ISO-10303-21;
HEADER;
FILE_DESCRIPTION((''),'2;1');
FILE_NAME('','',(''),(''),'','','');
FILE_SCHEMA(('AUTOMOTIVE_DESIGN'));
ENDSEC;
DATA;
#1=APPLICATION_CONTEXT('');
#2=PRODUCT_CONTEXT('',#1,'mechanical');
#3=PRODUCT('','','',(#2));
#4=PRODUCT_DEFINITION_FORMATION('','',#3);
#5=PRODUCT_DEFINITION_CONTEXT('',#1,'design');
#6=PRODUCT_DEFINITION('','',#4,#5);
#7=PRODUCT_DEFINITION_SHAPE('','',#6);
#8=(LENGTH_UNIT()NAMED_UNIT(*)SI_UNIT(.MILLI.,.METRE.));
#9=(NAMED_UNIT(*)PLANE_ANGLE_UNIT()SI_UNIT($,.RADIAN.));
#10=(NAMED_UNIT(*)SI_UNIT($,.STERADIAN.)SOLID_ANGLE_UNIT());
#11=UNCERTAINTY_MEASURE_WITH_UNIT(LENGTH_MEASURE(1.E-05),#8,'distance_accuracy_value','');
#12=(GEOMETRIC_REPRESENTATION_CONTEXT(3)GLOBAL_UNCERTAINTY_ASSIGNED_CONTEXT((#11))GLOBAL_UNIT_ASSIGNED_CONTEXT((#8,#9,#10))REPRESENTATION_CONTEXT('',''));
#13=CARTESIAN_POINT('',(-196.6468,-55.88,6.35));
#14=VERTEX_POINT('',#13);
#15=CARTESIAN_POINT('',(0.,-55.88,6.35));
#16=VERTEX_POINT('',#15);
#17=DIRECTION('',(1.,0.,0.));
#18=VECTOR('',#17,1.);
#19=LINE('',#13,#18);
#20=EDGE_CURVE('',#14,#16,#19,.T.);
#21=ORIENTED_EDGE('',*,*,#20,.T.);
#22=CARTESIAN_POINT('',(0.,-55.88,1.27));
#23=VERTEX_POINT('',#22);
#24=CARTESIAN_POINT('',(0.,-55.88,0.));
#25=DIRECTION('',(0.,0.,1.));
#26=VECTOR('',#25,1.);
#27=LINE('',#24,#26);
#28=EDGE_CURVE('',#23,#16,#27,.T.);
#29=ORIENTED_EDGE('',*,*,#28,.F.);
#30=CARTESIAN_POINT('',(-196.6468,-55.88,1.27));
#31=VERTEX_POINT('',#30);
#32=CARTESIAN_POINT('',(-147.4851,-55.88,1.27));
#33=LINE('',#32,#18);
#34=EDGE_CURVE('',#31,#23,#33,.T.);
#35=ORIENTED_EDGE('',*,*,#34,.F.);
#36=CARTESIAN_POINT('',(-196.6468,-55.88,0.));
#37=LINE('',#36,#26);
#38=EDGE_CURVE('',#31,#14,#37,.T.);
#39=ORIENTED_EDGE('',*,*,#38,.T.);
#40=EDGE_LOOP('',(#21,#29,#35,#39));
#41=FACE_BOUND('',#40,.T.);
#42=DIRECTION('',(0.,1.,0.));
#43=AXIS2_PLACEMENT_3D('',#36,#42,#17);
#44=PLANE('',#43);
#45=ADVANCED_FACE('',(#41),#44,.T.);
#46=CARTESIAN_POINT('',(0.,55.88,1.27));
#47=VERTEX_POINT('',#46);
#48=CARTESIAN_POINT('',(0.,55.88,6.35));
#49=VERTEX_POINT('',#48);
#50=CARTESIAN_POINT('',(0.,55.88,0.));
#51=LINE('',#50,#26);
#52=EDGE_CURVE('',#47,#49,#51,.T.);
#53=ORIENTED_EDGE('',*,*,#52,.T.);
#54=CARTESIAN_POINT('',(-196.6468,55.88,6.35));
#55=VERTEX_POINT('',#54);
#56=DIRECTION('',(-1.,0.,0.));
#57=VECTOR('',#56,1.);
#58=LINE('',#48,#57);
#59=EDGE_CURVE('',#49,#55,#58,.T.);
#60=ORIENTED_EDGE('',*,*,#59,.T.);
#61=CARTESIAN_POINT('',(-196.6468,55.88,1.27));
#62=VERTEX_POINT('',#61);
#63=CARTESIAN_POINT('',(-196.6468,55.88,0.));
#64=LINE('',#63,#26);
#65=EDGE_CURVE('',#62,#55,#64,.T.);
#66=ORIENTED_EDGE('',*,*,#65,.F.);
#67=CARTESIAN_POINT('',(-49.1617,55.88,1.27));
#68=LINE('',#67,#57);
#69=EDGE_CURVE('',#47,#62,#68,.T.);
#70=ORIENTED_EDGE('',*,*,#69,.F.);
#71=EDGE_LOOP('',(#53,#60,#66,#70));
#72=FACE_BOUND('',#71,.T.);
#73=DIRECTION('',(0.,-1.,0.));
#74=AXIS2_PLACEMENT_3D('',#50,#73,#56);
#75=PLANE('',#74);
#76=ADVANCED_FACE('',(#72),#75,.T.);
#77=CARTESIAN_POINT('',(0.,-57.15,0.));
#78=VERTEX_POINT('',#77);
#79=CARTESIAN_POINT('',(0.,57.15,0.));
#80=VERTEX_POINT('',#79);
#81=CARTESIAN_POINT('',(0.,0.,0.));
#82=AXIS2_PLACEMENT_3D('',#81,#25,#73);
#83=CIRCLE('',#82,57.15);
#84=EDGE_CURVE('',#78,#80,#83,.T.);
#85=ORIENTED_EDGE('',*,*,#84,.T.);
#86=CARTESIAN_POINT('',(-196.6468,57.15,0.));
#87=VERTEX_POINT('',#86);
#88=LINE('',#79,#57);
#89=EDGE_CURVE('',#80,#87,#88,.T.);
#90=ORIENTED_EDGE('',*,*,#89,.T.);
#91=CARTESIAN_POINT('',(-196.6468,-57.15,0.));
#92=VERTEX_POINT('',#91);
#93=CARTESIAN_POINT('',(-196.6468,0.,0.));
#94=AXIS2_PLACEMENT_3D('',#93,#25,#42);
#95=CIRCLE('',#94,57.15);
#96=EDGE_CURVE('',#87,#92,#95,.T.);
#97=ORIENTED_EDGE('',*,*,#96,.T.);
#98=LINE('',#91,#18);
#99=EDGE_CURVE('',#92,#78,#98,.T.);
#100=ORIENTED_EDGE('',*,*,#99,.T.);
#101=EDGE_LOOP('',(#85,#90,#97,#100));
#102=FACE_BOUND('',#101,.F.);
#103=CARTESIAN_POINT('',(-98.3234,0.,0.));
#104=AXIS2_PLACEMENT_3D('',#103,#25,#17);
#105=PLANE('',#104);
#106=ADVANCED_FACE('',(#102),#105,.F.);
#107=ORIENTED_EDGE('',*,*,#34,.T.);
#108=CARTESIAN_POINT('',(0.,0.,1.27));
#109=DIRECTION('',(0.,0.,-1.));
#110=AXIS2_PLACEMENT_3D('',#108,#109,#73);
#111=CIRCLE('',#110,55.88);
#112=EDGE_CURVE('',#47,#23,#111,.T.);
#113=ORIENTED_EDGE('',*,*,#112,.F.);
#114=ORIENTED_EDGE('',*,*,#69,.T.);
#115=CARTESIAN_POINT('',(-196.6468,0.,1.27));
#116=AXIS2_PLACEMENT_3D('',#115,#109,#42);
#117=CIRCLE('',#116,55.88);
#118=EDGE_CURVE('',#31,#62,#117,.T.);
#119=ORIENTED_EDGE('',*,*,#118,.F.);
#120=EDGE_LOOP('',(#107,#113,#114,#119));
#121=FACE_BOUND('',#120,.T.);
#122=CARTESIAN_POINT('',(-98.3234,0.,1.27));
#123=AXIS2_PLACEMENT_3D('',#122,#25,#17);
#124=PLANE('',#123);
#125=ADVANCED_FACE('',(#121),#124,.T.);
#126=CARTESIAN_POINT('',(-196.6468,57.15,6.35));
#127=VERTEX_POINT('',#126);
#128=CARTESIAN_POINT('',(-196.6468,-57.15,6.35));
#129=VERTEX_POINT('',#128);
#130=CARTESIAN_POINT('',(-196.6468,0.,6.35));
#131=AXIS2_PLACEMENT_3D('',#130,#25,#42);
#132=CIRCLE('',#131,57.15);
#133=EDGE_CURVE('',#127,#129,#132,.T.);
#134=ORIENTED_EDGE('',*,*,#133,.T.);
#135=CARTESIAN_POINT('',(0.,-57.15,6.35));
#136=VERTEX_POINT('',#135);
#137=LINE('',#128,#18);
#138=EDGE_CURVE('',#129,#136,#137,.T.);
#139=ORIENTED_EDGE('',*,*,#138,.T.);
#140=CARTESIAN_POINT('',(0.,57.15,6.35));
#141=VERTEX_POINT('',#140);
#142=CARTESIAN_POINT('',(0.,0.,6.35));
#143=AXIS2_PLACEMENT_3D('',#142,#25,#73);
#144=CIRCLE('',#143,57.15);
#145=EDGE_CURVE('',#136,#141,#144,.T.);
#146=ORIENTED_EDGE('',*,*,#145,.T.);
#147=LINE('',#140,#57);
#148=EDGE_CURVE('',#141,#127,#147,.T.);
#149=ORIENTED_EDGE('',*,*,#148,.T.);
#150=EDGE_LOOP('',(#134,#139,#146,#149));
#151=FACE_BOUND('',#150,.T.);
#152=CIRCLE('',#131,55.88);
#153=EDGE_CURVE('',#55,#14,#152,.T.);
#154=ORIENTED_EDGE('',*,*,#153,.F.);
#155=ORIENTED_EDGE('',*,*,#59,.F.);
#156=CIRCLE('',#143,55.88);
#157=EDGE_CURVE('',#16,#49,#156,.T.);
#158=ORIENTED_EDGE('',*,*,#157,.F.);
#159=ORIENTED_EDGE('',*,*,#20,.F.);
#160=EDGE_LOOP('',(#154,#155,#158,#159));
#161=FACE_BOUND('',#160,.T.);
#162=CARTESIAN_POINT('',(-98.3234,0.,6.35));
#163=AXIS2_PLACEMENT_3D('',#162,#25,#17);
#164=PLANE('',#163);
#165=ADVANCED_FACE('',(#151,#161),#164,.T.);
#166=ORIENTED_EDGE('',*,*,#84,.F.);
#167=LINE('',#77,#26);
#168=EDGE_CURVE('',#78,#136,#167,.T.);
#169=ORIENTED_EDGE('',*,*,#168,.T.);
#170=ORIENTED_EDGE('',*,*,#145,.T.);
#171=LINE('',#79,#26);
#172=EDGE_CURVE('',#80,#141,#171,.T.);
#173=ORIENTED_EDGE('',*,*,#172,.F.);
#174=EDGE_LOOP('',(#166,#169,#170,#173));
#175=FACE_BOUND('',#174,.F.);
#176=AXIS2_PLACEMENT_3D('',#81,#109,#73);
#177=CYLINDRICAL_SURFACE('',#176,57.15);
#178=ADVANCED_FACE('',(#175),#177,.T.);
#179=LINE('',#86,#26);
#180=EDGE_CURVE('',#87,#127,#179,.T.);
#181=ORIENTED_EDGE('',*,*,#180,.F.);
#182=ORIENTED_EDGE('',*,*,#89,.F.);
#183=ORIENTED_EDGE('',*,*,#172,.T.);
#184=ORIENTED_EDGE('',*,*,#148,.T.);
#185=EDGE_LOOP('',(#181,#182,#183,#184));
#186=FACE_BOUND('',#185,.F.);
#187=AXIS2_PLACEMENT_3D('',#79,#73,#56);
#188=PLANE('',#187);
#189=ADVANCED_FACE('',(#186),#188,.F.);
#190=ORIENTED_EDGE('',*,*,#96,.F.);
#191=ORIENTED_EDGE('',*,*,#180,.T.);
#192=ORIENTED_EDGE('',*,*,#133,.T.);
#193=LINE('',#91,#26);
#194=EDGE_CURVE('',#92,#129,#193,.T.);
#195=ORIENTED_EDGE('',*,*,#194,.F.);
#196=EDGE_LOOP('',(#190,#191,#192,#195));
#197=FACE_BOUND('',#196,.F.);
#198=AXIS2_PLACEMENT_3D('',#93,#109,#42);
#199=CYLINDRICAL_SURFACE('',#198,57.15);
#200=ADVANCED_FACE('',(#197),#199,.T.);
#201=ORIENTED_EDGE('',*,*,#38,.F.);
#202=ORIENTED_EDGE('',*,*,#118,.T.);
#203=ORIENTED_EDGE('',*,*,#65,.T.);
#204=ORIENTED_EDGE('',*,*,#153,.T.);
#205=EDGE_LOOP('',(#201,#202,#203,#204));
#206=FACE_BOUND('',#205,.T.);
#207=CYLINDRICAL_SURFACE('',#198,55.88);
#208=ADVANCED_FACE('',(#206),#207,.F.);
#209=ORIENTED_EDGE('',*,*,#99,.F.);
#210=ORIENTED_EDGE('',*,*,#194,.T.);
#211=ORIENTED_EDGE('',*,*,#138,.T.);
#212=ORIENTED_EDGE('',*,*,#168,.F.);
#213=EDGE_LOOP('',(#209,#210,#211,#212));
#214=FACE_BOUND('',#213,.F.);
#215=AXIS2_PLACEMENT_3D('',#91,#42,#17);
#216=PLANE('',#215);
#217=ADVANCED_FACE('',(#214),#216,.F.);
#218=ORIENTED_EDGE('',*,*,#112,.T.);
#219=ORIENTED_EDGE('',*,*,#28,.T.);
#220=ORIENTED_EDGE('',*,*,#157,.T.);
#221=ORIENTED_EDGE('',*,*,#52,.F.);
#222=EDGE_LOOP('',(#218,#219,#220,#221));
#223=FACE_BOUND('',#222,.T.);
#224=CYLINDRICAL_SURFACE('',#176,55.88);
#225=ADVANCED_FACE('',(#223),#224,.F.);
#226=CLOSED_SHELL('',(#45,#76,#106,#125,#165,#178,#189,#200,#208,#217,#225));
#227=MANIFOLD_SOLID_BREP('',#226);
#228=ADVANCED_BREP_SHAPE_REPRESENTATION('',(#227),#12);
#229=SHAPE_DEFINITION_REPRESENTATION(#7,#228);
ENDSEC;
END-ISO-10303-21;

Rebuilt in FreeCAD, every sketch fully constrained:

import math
import FreeCAD as App
import Part
import Sketcher
Q = App.Units.Quantity


def faces_at(feature, points):
    """Names of the faces that lie closest to the given points."""
    faces = feature.Shape.Faces
    near = lambda p: min(range(len(faces)), key=lambda i: faces[i].distToShape(Part.Vertex(*p))[0])
    return sorted({f"Face{near(p) + 1}" for p in points})

doc = App.newDocument("Part")
params = doc.addObject("Spreadsheet::Sheet", "Params")
for row, (alias, value) in enumerate([
    ("sketch1_radius", "2.25 in"),
    ("sketch1_width", "7.742 in"),
    ("pad1_length", "0.25 in"),
    ("thickness_wall", "0.05 in"),
], start=1):
    params.set(f"A{row}", alias)
    params.set(f"B{row}", "=" + value)
    params.setAlias(f"B{row}", alias)

body = doc.addObject("PartDesign::Body", "Body")

# Sketch on XY plane
sketch1 = body.newObject("Sketcher::SketchObject", "Sketch")
sketch1.AttachmentSupport = (doc.getObject("XY_Plane"), [""])
sketch1.MapMode = "FlatFace"
sketch1.addGeometry([
    Part.LineSegment(App.Vector(0, 57, 0), App.Vector(-197, 57, 0)),
    Part.ArcOfCircle(Part.Circle(App.Vector(-197, 0, 0), App.Vector(0, 0, 1), 57), math.radians(90), math.radians(270)),
    Part.LineSegment(App.Vector(-197, -57, 0), App.Vector(0, -57, 0)),
    Part.ArcOfCircle(Part.Circle(App.Vector(0, 0, 0), App.Vector(0, 0, 1), 57), math.radians(-90), math.radians(90)),
], False)
sketch1.addConstraint([
    Sketcher.Constraint("Tangent", 0, 2, 1, 1),
    Sketcher.Constraint("Tangent", 1, 2, 2, 1),
    Sketcher.Constraint("Tangent", 2, 2, 3, 1),
    Sketcher.Constraint("Tangent", 3, 2, 0, 1),
    Sketcher.Constraint("Horizontal", 0),
    Sketcher.Constraint("Horizontal", 2),
    Sketcher.Constraint("Coincident", 3, 3, -1, 1),
    Sketcher.Constraint("Radius", 1, Q("2.25 in")),
    Sketcher.Constraint("DistanceX", 0, 2, 0, 1, Q("7.742 in")),
])
sketch1.setExpression("Constraints[7]", "Params.sketch1_radius")
sketch1.setExpression("Constraints[8]", "Params.sketch1_width")
pad1 = body.newObject("PartDesign::Pad", "Pad")
pad1.Profile = sketch1
pad1.setExpression("Length", "Params.pad1_length")
doc.recompute()

thickness = body.newObject("PartDesign::Thickness", "Thickness")
thickness.Base = (pad1, faces_at(pad1, [(-98.323, 0, 6.35)]))
thickness.setExpression("Value", "Params.thickness_wall")
thickness.Reversed = True
thickness.Join = "Arc"

doc.recompute()
